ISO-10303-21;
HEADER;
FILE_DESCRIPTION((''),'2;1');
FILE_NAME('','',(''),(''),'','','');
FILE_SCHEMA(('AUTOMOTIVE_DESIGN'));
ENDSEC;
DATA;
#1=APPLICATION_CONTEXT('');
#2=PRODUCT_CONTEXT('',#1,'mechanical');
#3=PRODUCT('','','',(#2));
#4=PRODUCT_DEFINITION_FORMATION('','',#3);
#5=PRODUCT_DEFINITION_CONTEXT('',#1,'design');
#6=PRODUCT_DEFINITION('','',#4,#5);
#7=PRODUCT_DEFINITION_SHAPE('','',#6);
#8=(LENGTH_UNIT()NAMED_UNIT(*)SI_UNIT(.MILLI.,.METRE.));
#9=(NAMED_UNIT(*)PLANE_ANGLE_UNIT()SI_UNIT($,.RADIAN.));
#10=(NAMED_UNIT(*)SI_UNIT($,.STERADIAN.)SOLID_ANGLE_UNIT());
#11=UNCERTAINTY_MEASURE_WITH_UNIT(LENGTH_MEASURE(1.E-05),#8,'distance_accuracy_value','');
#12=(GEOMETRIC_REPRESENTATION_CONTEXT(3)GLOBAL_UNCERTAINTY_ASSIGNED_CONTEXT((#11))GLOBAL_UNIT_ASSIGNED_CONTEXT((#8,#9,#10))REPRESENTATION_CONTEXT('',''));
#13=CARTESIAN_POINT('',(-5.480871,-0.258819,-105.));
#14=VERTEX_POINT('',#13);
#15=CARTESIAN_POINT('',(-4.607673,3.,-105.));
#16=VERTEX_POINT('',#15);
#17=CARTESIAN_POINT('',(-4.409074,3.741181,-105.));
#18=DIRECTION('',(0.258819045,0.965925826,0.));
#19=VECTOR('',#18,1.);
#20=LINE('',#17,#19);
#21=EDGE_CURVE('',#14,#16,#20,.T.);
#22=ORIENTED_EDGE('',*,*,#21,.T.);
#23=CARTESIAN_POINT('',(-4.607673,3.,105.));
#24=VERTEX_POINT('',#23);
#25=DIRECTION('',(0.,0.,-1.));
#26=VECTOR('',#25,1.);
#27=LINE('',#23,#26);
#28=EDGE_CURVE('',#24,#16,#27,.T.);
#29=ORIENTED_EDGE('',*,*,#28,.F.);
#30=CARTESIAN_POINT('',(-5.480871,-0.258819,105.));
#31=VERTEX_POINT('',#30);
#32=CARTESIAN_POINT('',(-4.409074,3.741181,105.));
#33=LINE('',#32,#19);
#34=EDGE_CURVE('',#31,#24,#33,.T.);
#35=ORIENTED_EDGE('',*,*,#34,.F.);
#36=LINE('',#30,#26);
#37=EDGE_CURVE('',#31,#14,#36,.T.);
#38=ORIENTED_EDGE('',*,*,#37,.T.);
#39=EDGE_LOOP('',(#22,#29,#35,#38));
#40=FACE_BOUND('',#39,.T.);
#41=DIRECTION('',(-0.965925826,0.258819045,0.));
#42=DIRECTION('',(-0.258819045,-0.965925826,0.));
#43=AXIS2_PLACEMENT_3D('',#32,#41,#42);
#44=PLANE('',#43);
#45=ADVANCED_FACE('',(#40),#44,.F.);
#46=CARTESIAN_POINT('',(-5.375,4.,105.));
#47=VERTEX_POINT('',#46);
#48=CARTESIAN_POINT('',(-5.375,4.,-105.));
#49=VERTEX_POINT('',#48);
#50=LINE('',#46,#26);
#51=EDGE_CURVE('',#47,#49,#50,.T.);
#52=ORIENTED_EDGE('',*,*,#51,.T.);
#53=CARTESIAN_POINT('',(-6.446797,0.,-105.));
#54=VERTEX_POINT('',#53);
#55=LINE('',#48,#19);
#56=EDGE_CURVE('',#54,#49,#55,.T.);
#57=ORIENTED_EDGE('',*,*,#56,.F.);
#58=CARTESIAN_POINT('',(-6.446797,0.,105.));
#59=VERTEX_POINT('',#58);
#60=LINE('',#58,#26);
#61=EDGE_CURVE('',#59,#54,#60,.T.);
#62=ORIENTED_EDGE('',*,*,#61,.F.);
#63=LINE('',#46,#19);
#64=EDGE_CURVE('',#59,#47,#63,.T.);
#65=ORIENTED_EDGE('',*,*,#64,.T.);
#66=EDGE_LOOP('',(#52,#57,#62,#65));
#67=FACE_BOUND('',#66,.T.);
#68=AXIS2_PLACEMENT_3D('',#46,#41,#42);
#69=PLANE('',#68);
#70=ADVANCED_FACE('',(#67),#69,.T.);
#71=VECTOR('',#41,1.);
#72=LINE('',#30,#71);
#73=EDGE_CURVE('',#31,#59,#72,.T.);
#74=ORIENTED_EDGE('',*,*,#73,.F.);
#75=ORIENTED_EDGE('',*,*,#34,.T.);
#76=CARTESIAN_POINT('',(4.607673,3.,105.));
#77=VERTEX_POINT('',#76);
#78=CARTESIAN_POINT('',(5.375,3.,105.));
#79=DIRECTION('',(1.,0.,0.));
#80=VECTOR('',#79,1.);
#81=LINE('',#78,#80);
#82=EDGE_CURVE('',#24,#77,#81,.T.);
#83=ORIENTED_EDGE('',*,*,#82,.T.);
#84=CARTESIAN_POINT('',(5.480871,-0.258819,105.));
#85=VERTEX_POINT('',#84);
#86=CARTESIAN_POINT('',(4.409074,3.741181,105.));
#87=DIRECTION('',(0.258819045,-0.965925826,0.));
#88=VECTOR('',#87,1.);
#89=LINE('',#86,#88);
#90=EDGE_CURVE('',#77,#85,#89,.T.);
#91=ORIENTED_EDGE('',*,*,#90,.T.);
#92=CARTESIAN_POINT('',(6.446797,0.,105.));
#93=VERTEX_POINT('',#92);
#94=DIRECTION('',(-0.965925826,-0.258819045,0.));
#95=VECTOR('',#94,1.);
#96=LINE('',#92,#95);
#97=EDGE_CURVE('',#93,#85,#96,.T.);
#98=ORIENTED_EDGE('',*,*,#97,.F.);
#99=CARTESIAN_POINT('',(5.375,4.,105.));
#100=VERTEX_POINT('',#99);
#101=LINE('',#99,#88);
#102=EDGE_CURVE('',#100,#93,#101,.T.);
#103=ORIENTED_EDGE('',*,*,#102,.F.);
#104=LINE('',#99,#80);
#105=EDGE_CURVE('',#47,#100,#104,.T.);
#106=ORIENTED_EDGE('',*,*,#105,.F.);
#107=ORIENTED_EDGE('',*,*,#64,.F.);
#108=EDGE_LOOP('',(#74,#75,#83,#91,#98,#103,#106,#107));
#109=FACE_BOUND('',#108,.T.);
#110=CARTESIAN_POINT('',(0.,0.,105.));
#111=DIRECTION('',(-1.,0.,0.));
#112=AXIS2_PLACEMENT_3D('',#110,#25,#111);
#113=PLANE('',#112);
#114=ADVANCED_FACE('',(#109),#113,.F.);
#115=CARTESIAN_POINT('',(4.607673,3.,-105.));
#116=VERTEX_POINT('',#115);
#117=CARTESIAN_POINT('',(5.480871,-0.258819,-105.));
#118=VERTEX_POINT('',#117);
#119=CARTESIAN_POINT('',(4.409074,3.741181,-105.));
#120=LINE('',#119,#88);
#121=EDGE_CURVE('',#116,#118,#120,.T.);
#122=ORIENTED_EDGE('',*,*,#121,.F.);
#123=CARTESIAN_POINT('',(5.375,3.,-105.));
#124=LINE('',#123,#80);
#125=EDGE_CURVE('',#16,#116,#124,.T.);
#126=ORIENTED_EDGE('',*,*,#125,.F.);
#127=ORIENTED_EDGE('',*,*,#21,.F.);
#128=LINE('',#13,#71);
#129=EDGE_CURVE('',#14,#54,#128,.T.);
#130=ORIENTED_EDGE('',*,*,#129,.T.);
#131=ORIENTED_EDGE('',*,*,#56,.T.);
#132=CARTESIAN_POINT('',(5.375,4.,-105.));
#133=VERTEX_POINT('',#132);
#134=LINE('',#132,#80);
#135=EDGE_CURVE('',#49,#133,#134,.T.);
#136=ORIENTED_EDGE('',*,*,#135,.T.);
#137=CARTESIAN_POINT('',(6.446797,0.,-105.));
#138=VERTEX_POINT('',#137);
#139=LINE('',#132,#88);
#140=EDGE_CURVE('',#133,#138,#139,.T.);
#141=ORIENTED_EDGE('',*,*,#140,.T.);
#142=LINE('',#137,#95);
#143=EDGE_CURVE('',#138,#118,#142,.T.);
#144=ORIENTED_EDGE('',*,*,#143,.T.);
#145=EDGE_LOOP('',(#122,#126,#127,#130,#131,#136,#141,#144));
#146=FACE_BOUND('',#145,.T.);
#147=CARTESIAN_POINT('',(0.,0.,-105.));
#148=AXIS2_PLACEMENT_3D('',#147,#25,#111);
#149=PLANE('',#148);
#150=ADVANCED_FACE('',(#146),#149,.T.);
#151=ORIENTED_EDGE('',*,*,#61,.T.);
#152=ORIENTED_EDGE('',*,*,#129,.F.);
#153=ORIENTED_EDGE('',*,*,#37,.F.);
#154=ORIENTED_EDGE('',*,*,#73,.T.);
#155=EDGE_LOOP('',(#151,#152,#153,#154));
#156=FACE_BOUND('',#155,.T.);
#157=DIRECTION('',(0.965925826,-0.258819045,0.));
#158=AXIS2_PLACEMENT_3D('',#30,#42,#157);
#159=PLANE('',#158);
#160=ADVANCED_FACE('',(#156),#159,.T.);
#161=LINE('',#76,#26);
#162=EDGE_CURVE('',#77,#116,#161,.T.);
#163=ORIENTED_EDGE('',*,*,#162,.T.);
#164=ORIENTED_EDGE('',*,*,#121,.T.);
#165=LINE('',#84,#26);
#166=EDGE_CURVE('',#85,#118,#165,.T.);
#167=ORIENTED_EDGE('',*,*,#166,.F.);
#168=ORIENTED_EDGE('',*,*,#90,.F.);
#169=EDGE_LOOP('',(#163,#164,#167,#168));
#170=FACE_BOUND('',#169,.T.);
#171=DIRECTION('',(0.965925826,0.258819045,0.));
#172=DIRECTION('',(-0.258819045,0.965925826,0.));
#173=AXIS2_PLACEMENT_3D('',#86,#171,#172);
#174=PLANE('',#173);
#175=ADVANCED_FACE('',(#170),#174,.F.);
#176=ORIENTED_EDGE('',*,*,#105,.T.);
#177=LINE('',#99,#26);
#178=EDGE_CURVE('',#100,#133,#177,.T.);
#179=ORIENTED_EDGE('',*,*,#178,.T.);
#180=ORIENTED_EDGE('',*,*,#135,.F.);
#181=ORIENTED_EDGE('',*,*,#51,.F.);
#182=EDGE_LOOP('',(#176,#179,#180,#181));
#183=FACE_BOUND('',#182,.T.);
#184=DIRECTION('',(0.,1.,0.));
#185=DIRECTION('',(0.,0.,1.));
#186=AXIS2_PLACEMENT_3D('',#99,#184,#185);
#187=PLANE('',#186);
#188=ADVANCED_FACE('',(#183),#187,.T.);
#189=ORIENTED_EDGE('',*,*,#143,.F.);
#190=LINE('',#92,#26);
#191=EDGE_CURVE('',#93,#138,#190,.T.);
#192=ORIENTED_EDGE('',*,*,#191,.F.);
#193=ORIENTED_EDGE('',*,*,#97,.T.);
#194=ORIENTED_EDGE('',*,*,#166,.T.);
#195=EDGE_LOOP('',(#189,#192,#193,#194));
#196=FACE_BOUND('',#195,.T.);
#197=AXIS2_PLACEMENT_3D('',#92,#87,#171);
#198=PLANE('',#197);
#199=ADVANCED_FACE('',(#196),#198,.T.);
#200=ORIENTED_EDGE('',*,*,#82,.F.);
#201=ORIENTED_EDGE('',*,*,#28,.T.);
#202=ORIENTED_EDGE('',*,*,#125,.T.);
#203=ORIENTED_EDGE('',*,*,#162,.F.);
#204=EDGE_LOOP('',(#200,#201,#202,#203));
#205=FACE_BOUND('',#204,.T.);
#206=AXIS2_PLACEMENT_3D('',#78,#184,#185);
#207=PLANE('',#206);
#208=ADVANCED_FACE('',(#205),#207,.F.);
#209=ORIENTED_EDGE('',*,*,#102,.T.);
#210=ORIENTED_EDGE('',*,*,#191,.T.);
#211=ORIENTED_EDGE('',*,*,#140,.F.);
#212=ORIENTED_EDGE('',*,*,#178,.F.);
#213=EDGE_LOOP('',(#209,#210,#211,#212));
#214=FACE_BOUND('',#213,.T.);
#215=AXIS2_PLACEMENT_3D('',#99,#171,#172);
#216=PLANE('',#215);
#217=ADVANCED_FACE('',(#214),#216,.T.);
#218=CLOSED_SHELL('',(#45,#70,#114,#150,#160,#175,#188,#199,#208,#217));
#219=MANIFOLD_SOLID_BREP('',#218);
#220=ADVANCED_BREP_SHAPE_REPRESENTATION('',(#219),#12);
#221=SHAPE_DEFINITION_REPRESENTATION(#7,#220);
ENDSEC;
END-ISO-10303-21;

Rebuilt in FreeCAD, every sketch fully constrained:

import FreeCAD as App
import Part
import Sketcher

V = App.Vector
Q = App.Units.Quantity


def add_polygon(sketch, points):
    """Adds a closed chain of lines whose ends are joined by coincident constraints."""
    first, n = sketch.GeometryCount, len(points)
    for a, b in zip(points, points[1:] + points[:1]):
        sketch.addGeometry(Part.LineSegment(App.Vector(*a, 0), App.Vector(*b, 0)), False)
    for i in range(n):
        sketch.addConstraint(Sketcher.Constraint("Coincident", first + i, 2, first + (i + 1) % n, 1))

doc = App.newDocument("Part")
body = doc.addObject("PartDesign::Body", "Body")

# Sketch on XY plane
sketch1 = body.newObject("Sketcher::SketchObject", "Sketch")
sketch1.AttachmentSupport = (doc.getObject("XY_Plane"), [""])
sketch1.MapMode = "FlatFace"
add_polygon(sketch1, [(6.446797, 0), (5.375, 4), (-5.375, 4), (-6.446797, 0), (-5.480871, -0.258819), (-4.607673, 3), (4.607673, 3), (5.480871, -0.258819)])  # lines 0-7
sketch1.addConstraint([
    Sketcher.Constraint("Horizontal", 1),
    Sketcher.Constraint("Horizontal", 5),
    Sketcher.Constraint("Symmetric", 2, 2, 7, 2, -1, 1),
    Sketcher.Constraint("Symmetric", 3, 2, 6, 2, -2),
    Sketcher.Constraint("PointOnObject", 2, 2, -1),
    Sketcher.Constraint("Perpendicular", 2, 3),
    Sketcher.Constraint("Perpendicular", 3, 4),
    Sketcher.Constraint("Parallel", 0, 6),
    Sketcher.Constraint("Perpendicular", 6, 7),
    Sketcher.Constraint("Angle", 0, Q("105 deg")),
    Sketcher.Constraint("Distance", 3, Q("1 mm")),
    Sketcher.Constraint("DistanceY", -1, 1, 0, 2, Q("4 mm")),
    Sketcher.Constraint("DistanceY", -1, 1, 4, 2, Q("3 mm")),
    Sketcher.Constraint("DistanceX", 1, 2, 1, 1, Q("10.75 mm")),
])
pad1 = body.newObject("PartDesign::Pad", "Pad")
pad1.Profile = sketch1
pad1.Length = 210
pad1.Midplane = True

doc.recompute()
